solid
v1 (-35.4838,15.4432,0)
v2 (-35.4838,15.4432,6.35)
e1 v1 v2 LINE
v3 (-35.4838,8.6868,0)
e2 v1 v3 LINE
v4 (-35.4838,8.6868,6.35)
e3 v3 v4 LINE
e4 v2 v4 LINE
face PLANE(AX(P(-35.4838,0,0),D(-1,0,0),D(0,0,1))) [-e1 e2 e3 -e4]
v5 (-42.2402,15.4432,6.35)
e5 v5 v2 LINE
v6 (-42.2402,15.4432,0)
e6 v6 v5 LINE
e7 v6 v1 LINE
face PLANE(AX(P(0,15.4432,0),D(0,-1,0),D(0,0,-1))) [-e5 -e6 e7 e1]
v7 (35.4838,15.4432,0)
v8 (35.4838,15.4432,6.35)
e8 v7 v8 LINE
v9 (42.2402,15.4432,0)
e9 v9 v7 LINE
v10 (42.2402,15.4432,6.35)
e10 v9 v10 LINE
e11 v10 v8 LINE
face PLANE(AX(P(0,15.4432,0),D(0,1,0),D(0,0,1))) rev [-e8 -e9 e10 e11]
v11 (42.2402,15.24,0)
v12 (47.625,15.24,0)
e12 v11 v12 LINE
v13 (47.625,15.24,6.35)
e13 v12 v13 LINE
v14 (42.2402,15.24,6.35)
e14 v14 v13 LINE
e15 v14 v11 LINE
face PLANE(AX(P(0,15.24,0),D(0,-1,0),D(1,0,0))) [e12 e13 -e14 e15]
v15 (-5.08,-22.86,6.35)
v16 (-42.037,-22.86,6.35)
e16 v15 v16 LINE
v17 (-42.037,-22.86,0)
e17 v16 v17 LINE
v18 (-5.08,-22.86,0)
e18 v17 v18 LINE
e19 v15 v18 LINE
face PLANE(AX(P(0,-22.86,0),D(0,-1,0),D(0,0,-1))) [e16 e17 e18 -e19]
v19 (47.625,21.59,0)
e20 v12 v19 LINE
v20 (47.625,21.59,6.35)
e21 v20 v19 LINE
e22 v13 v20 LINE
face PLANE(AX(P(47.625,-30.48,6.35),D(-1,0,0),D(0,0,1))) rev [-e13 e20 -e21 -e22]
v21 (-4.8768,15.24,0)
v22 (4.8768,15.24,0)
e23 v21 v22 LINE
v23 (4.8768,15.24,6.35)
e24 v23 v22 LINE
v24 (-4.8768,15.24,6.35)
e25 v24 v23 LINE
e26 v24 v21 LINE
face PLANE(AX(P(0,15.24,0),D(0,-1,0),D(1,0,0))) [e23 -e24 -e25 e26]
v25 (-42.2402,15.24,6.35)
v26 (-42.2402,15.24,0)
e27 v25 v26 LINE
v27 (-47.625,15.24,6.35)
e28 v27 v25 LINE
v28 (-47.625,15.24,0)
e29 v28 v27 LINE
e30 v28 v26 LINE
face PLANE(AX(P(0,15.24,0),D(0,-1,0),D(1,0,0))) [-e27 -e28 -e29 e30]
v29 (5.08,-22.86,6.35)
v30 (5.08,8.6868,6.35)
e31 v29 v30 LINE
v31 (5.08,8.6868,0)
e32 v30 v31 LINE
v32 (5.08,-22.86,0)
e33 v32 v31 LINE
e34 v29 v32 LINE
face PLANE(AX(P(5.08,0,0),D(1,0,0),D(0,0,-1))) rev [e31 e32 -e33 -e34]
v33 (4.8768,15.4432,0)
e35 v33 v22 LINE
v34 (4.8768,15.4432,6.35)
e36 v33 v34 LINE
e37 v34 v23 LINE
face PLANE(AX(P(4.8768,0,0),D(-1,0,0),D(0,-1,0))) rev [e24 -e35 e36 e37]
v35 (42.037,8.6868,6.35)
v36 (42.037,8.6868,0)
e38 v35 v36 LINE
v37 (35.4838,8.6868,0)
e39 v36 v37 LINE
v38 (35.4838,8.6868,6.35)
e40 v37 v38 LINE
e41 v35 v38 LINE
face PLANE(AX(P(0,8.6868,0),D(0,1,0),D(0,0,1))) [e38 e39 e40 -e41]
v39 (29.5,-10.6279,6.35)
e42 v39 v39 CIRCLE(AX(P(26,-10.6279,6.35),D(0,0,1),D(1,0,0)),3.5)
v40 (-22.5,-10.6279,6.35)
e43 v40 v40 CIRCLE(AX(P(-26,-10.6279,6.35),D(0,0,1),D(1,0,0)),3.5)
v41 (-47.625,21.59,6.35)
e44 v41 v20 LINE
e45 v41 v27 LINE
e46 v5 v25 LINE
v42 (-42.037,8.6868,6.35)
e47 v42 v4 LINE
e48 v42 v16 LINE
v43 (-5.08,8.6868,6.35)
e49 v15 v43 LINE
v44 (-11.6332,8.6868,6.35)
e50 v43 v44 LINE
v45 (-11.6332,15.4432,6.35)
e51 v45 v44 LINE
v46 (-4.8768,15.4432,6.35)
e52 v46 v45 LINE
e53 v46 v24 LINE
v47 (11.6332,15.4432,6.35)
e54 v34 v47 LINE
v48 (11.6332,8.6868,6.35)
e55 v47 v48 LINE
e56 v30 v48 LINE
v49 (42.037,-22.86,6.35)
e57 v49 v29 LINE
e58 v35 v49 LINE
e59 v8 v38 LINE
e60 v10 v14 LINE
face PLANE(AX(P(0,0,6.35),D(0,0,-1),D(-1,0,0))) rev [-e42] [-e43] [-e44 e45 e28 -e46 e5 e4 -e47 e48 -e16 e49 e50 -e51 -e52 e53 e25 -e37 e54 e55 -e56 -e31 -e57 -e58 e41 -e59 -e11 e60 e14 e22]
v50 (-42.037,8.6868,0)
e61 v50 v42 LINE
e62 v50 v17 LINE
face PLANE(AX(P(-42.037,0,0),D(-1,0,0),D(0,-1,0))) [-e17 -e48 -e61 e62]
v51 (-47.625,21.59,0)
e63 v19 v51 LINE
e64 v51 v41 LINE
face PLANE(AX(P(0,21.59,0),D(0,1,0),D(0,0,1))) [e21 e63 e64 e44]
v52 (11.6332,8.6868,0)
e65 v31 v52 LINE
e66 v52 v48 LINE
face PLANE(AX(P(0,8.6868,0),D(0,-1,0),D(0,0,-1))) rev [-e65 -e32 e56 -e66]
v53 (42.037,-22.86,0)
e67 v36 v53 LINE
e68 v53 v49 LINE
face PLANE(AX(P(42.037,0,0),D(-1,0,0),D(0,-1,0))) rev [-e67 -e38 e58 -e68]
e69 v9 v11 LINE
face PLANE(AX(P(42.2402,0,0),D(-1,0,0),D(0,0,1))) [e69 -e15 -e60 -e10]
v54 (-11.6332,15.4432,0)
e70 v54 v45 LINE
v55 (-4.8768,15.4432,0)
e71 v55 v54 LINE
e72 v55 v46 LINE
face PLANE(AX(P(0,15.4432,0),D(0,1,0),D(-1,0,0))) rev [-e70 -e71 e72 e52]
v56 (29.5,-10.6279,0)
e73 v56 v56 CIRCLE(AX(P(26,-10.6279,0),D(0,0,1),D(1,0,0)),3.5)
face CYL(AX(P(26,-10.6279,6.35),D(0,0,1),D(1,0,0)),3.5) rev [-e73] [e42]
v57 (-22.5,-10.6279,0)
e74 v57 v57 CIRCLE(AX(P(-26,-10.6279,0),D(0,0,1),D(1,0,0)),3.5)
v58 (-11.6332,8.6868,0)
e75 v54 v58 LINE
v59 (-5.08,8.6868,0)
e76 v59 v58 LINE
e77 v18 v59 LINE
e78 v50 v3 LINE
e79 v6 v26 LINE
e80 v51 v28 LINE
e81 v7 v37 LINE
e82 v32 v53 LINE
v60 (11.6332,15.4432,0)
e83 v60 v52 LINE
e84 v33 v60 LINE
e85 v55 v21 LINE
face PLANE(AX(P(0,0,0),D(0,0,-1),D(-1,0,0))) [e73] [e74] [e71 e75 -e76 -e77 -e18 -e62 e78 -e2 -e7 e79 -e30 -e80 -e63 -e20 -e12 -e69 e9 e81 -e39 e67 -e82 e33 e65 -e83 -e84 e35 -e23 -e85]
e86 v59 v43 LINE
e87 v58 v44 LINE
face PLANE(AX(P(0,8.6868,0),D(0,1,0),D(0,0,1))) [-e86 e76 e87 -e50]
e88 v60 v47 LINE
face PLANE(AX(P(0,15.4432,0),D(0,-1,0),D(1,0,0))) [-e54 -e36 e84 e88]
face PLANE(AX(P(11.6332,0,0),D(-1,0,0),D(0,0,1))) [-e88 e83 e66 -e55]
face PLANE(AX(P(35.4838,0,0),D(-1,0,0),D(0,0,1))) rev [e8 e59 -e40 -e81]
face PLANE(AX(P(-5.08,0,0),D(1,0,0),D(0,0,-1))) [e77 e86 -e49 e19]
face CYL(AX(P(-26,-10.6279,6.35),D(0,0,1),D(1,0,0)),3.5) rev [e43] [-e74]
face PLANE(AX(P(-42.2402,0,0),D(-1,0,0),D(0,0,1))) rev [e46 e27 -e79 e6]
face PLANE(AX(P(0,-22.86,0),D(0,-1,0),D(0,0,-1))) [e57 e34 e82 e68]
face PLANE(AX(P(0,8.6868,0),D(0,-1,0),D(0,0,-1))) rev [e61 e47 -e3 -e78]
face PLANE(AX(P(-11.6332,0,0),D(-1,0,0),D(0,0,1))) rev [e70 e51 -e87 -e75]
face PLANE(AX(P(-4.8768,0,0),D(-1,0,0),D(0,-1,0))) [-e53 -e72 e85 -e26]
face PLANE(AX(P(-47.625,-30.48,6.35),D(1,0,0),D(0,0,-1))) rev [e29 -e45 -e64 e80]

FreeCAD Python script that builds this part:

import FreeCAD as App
import Part
import Sketcher

V = App.Vector
Q = App.Units.Quantity

doc = App.newDocument("Part")
body = doc.addObject("PartDesign::Body", "Body")

sketch1 = body.newObject("Sketcher::SketchObject", "Sketch")
sketch1.AttachmentSupport = (doc.getObject("XY_Plane"), [""])
sketch1.MapMode = "FlatFace"
sketch1.addGeometry(Part.LineSegment(V(-48, 30, 0), V(-48, -30, 0)), False)
sketch1.addGeometry(Part.LineSegment(V(-48, -30, 0), V(48, -30, 0)), False)
sketch1.addGeometry(Part.LineSegment(V(48, -30, 0), V(48, 30, 0)), False)
sketch1.addGeometry(Part.LineSegment(V(48, 30, 0), V(-48, 30, 0)), False)
sketch1.addConstraint(Sketcher.Constraint("Coincident", 0, 2, 1, 1))
sketch1.addConstraint(Sketcher.Constraint("Coincident", 1, 2, 2, 1))
sketch1.addConstraint(Sketcher.Constraint("Coincident", 2, 2, 3, 1))
sketch1.addConstraint(Sketcher.Constraint("Coincident", 3, 2, 0, 1))
sketch1.addConstraint(Sketcher.Constraint("Vertical", 0))
sketch1.addConstraint(Sketcher.Constraint("Horizontal", 1))
sketch1.addConstraint(Sketcher.Constraint("Vertical", 2))
sketch1.addConstraint(Sketcher.Constraint("Horizontal", 3))
sketch1.addConstraint(Sketcher.Constraint("Symmetric", 0, 2, 2, 2, -1, 1))
sketch1.addConstraint(Sketcher.Constraint("DistanceY", 0, 2, 0, 1, Q("2.4 in")))
sketch1.addConstraint(Sketcher.Constraint("DistanceX", 1, 1, 1, 2, Q("3.75 in")))
pad1 = body.newObject("PartDesign::Pad", "Pad")
pad1.Profile = sketch1
pad1.Length = Q("0.25 in")

sketch2 = body.newObject("Sketcher::SketchObject", "Sketch001")
sketch2.AttachmentSupport = (doc.getObject("XY_Plane"), [""])
sketch2.MapMode = "FlatFace"
sketch2.AttachmentOffset = App.Placement(V(0, 0, 0.25 * 25.4), App.Rotation())
sketch2.addGeometry(Part.LineSegment(V(-48, 15, 0), V(-48, -30, 0)), False)
sketch2.addGeometry(Part.LineSegment(V(-48, -30, 0), V(-42, -30, 0)), False)
sketch2.addGeometry(Part.LineSegment(V(-42, -30, 0), V(-42, 15, 0)), False)
sketch2.addGeometry(Part.LineSegment(V(-42, 15, 0), V(-48, 15, 0)), False)
sketch2.addGeometry(Part.LineSegment(V(-5, 15, 0), V(-5, -30, 0)), False)
sketch2.addGeometry(Part.LineSegment(V(-5, -30, 0), V(5, -30, 0)), False)
sketch2.addGeometry(Part.LineSegment(V(5, -30, 0), V(5, 15, 0)), False)
sketch2.addGeometry(Part.LineSegment(V(5, 15, 0), V(-5, 15, 0)), False)
sketch2.addGeometry(Part.LineSegment(V(42, 15, 0), V(42, -30, 0)), False)
sketch2.addGeometry(Part.LineSegment(V(42, -30, 0), V(48, -30, 0)), False)
sketch2.addGeometry(Part.LineSegment(V(48, -30, 0), V(48, 15, 0)), False)
sketch2.addGeometry(Part.LineSegment(V(48, 15, 0), V(42, 15, 0)), False)
sketch2.addConstraint(Sketcher.Constraint("Coincident", 0, 2, 1, 1))
sketch2.addConstraint(Sketcher.Constraint("Coincident", 1, 2, 2, 1))
sketch2.addConstraint(Sketcher.Constraint("Coincident", 2, 2, 3, 1))
sketch2.addConstraint(Sketcher.Constraint("Coincident", 3, 2, 0, 1))
sketch2.addConstraint(Sketcher.Constraint("Coincident", 4, 2, 5, 1))
sketch2.addConstraint(Sketcher.Constraint("Coincident", 5, 2, 6, 1))
sketch2.addConstraint(Sketcher.Constraint("Coincident", 6, 2, 7, 1))
sketch2.addConstraint(Sketcher.Constraint("Coincident", 7, 2, 4, 1))
sketch2.addConstraint(Sketcher.Constraint("Coincident", 8, 2, 9, 1))
sketch2.addConstraint(Sketcher.Constraint("Coincident", 9, 2, 10, 1))
sketch2.addConstraint(Sketcher.Constraint("Coincident", 10, 2, 11, 1))
sketch2.addConstraint(Sketcher.Constraint("Coincident", 11, 2, 8, 1))
sketch2.addConstraint(Sketcher.Constraint("Vertical", 0))
sketch2.addConstraint(Sketcher.Constraint("Horizontal", 1))
sketch2.addConstraint(Sketcher.Constraint("Vertical", 2))
sketch2.addConstraint(Sketcher.Constraint("Horizontal", 3))
sketch2.addConstraint(Sketcher.Constraint("Vertical", 4))
sketch2.addConstraint(Sketcher.Constraint("Horizontal", 5))
sketch2.addConstraint(Sketcher.Constraint("Vertical", 6))
sketch2.addConstraint(Sketcher.Constraint("Horizontal", 7))
sketch2.addConstraint(Sketcher.Constraint("Vertical", 8))
sketch2.addConstraint(Sketcher.Constraint("Horizontal", 9))
sketch2.addConstraint(Sketcher.Constraint("Vertical", 10))
sketch2.addConstraint(Sketcher.Constraint("Horizontal", 11))
sketch2.addConstraint(Sketcher.Constraint("Symmetric", 1, 2, 8, 2, -2))
sketch2.addConstraint(Sketcher.Constraint("Symmetric", 3, 2, 10, 2, -2))
sketch2.addConstraint(Sketcher.Constraint("Horizontal", 1, 2, 4, 2))
sketch2.addConstraint(Sketcher.Constraint("Horizontal", 3, 2, 6, 2))
sketch2.addConstraint(Sketcher.Constraint("DistanceX", 5, 1, 5, 2, Q("0.4 in")))
sketch2.addConstraint(Sketcher.Constraint("DistanceY", 0, 2, 0, 1, Q("1.8 in")))
sketch2.addConstraint(Sketcher.Constraint("DistanceX", 1, 1, 1, 2, Q("0.22 in")))
sketch2.addConstraint(Sketcher.Constraint("DistanceY", 0, 2, -1, 1, Q("1.2 in")))
sketch2.addConstraint(Sketcher.Constraint("DistanceX", 4, 2, -1, 1, Q("0.2 in")))
sketch2.addConstraint(Sketcher.Constraint("DistanceX", 1, 2, 8, 2, Q("3.31 in")))
pocket1 = body.newObject("PartDesign::Pocket", "Pocket")
pocket1.Profile = sketch2
pocket1.Length = Q("0.25 in")

sketch3 = body.newObject("Sketcher::SketchObject", "Sketch002")
sketch3.AttachmentSupport = (doc.getObject("XY_Plane"), [""])
sketch3.MapMode = "FlatFace"
sketch3.AttachmentOffset = App.Placement(V(0, 0, 0.25 * 25.4), App.Rotation())
sketch3.addGeometry(Part.LineSegment(V(-42, 15, 0), V(-42, 9, 0)), False)
sketch3.addGeometry(Part.LineSegment(V(-42, 9, 0), V(-35, 9, 0)), False)
sketch3.addGeometry(Part.LineSegment(V(-35, 9, 0), V(-35, 15, 0)), False)
sketch3.addGeometry(Part.LineSegment(V(-35, 15, 0), V(-42, 15, 0)), False)
sketch3.addGeometry(Part.LineSegment(V(-12, 15, 0), V(-12, 9, 0)), False)
sketch3.addGeometry(Part.LineSegment(V(-12, 9, 0), V(-5, 9, 0)), False)
sketch3.addGeometry(Part.LineSegment(V(-5, 9, 0), V(-5, 15, 0)), False)
sketch3.addGeometry(Part.LineSegment(V(-5, 15, 0), V(-12, 15, 0)), False)
sketch3.addConstraint(Sketcher.Constraint("Coincident", 0, 2, 1, 1))
sketch3.addConstraint(Sketcher.Constraint("Coincident", 1, 2, 2, 1))
sketch3.addConstraint(Sketcher.Constraint("Coincident", 2, 2, 3, 1))
sketch3.addConstraint(Sketcher.Constraint("Coincident", 3, 2, 0, 1))
sketch3.addConstraint(Sketcher.Constraint("Coincident", 4, 2, 5, 1))
sketch3.addConstraint(Sketcher.Constraint("Coincident", 5, 2, 6, 1))
sketch3.addConstraint(Sketcher.Constraint("Coincident", 6, 2, 7, 1))
sketch3.addConstraint(Sketcher.Constraint("Coincident", 7, 2, 4, 1))
sketch3.addConstraint(Sketcher.Constraint("Vertical", 0))
sketch3.addConstraint(Sketcher.Constraint("Horizontal", 1))
sketch3.addConstraint(Sketcher.Constraint("Vertical", 2))
sketch3.addConstraint(Sketcher.Constraint("Horizontal", 3))
sketch3.addConstraint(Sketcher.Constraint("Vertical", 4))
sketch3.addConstraint(Sketcher.Constraint("Horizontal", 5))
sketch3.addConstraint(Sketcher.Constraint("Vertical", 6))
sketch3.addConstraint(Sketcher.Constraint("Horizontal", 7))
sketch3.addConstraint(Sketcher.Constraint("Horizontal", 1, 2, 4, 2))
sketch3.addConstraint(Sketcher.Constraint("Horizontal", 3, 2, 6, 2))
sketch3.addConstraint(Sketcher.Constraint("Equal", 3, 5))
sketch3.addConstraint(Sketcher.Constraint("Equal", 7, 0))
sketch3.addConstraint(Sketcher.Constraint("DistanceX", 1, 1, 1, 2, Q("0.266 in")))
sketch3.addConstraint(Sketcher.Constraint("DistanceX", 0, 2, -1, 1, Q("1.663 in")))
sketch3.addConstraint(Sketcher.Constraint("DistanceY", -1, 1, 0, 2, Q("0.342 in")))
sketch3.addConstraint(Sketcher.Constraint("DistanceX", 4, 2, -1, 1, Q("0.458 in")))
pocket2 = body.newObject("PartDesign::Pocket", "Pocket001")
pocket2.Profile = sketch3
pocket2.Type = "ThroughAll"
doc.recompute()

mirrored = body.newObject("PartDesign::Mirrored", "Mirrored")
mirrored.Originals = [pocket2]
mirrored.MirrorPlane = (doc.getObject("YZ_Plane"), [""])
body.Tip = mirrored

sketch4 = body.newObject("Sketcher::SketchObject", "Sketch003")
sketch4.AttachmentSupport = (doc.getObject("XZ_Plane"), [""])
sketch4.MapMode = "FlatFace"
sketch4.AttachmentOffset = App.Placement(V(0, 0, -1.2 * 25.4), App.Rotation())
sketch4.addGeometry(Part.LineSegment(V(-48, 0, 0), V(-48, 6, 0)), False)
sketch4.addGeometry(Part.LineSegment(V(-48, 6, 0), V(48, 6, 0)), False)
sketch4.addGeometry(Part.LineSegment(V(48, 6, 0), V(48, 0, 0)), False)
sketch4.addGeometry(Part.LineSegment(V(48, 0, 0), V(-48, 0, 0)), False)
sketch4.addConstraint(Sketcher.Constraint("Coincident", 0, 2, 1, 1))
sketch4.addConstraint(Sketcher.Constraint("Coincident", 1, 2, 2, 1))
sketch4.addConstraint(Sketcher.Constraint("Coincident", 2, 2, 3, 1))
sketch4.addConstraint(Sketcher.Constraint("Coincident", 3, 2, 0, 1))
sketch4.addConstraint(Sketcher.Constraint("Vertical", 0))
sketch4.addConstraint(Sketcher.Constraint("Horizontal", 1))
sketch4.addConstraint(Sketcher.Constraint("Vertical", 2))
sketch4.addConstraint(Sketcher.Constraint("Horizontal", 3))
sketch4.addConstraint(Sketcher.Constraint("Symmetric", 2, 2, 3, 2, -1, 1))
sketch4.addConstraint(Sketcher.Constraint("DistanceX", 1, 1, 1, 2, Q("3.75 in")))
sketch4.addConstraint(Sketcher.Constraint("DistanceY", 0, 1, 0, 2, Q("0.25 in")))
pocket3 = body.newObject("PartDesign::Pocket", "Pocket002")
pocket3.Profile = sketch4
pocket3.Length = Q("0.35 in")
pocket3.Reversed = True

sketch5 = body.newObject("Sketcher::SketchObject", "Sketch004")
sketch5.AttachmentSupport = (doc.getObject("XZ_Plane"), [""])
sketch5.MapMode = "FlatFace"
sketch5.AttachmentOffset = App.Placement(V(0, 0, 1.2 * 25.4), App.Rotation())
sketch5.addGeometry(Part.LineSegment(V(-42, 6, 0), V(-42, 0, 0)), False)
sketch5.addGeometry(Part.LineSegment(V(-42, 0, 0), V(42, 0, 0)), False)
sketch5.addGeometry(Part.LineSegment(V(42, 0, 0), V(42, 6, 0)), False)
sketch5.addGeometry(Part.LineSegment(V(42, 6, 0), V(-42, 6, 0)), False)
sketch5.addConstraint(Sketcher.Constraint("Coincident", 0, 2, 1, 1))
sketch5.addConstraint(Sketcher.Constraint("Coincident", 1, 2, 2, 1))
sketch5.addConstraint(Sketcher.Constraint("Coincident", 2, 2, 3, 1))
sketch5.addConstraint(Sketcher.Constraint("Coincident", 3, 2, 0, 1))
sketch5.addConstraint(Sketcher.Constraint("Vertical", 0))
sketch5.addConstraint(Sketcher.Constraint("Horizontal", 1))
sketch5.addConstraint(Sketcher.Constraint("Vertical", 2))
sketch5.addConstraint(Sketcher.Constraint("Horizontal", 3))
sketch5.addConstraint(Sketcher.Constraint("Symmetric", 0, 2, 1, 2, -1, 1))
sketch5.addConstraint(Sketcher.Constraint("DistanceX", 1, 1, 1, 2, Q("3.31 in")))
sketch5.addConstraint(Sketcher.Constraint("DistanceY", 0, 2, 0, 1, Q("0.25 in")))
pocket4 = body.newObject("PartDesign::Pocket", "Pocket003")
pocket4.Profile = sketch5
pocket4.Length = Q("0.3 in")

sketch6 = body.newObject("Sketcher::SketchObject", "Sketch005")
sketch6.AttachmentSupport = (doc.getObject("XY_Plane"), [""])
sketch6.MapMode = "FlatFace"
sketch6.AttachmentOffset = App.Placement(V(0, 0, 0.25 * 25.4), App.Rotation())
sketch6.addGeometry(Part.Circle(V(26, -10.6, 0), V(0, 0, 1), 3.5), False)
sketch6.addGeometry(Part.Circle(V(-26, -10.6, 0), V(0, 0, 1), 3.5), False)
sketch6.addConstraint(Sketcher.Constraint("Equal", 0, 1))
sketch6.addConstraint(Sketcher.Constraint("Symmetric", 0, 3, 1, 3, -2))
sketch6.addConstraint(Sketcher.Constraint("Diameter", 0, Q("7 mm")))
sketch6.addConstraint(Sketcher.Constraint("DistanceX", -1, 1, 0, 3, Q("26 mm")))
sketch6.addConstraint(Sketcher.Constraint("DistanceY", 0, 3, -1, 1, Q("10.6279 mm")))
doc.recompute()
hole = body.newObject("PartDesign::Hole", "Hole")
hole.Profile = sketch6
hole.ThreadType = "None"
hole.Diameter = 7
hole.DepthType = "ThroughAll"

doc.recompute()
